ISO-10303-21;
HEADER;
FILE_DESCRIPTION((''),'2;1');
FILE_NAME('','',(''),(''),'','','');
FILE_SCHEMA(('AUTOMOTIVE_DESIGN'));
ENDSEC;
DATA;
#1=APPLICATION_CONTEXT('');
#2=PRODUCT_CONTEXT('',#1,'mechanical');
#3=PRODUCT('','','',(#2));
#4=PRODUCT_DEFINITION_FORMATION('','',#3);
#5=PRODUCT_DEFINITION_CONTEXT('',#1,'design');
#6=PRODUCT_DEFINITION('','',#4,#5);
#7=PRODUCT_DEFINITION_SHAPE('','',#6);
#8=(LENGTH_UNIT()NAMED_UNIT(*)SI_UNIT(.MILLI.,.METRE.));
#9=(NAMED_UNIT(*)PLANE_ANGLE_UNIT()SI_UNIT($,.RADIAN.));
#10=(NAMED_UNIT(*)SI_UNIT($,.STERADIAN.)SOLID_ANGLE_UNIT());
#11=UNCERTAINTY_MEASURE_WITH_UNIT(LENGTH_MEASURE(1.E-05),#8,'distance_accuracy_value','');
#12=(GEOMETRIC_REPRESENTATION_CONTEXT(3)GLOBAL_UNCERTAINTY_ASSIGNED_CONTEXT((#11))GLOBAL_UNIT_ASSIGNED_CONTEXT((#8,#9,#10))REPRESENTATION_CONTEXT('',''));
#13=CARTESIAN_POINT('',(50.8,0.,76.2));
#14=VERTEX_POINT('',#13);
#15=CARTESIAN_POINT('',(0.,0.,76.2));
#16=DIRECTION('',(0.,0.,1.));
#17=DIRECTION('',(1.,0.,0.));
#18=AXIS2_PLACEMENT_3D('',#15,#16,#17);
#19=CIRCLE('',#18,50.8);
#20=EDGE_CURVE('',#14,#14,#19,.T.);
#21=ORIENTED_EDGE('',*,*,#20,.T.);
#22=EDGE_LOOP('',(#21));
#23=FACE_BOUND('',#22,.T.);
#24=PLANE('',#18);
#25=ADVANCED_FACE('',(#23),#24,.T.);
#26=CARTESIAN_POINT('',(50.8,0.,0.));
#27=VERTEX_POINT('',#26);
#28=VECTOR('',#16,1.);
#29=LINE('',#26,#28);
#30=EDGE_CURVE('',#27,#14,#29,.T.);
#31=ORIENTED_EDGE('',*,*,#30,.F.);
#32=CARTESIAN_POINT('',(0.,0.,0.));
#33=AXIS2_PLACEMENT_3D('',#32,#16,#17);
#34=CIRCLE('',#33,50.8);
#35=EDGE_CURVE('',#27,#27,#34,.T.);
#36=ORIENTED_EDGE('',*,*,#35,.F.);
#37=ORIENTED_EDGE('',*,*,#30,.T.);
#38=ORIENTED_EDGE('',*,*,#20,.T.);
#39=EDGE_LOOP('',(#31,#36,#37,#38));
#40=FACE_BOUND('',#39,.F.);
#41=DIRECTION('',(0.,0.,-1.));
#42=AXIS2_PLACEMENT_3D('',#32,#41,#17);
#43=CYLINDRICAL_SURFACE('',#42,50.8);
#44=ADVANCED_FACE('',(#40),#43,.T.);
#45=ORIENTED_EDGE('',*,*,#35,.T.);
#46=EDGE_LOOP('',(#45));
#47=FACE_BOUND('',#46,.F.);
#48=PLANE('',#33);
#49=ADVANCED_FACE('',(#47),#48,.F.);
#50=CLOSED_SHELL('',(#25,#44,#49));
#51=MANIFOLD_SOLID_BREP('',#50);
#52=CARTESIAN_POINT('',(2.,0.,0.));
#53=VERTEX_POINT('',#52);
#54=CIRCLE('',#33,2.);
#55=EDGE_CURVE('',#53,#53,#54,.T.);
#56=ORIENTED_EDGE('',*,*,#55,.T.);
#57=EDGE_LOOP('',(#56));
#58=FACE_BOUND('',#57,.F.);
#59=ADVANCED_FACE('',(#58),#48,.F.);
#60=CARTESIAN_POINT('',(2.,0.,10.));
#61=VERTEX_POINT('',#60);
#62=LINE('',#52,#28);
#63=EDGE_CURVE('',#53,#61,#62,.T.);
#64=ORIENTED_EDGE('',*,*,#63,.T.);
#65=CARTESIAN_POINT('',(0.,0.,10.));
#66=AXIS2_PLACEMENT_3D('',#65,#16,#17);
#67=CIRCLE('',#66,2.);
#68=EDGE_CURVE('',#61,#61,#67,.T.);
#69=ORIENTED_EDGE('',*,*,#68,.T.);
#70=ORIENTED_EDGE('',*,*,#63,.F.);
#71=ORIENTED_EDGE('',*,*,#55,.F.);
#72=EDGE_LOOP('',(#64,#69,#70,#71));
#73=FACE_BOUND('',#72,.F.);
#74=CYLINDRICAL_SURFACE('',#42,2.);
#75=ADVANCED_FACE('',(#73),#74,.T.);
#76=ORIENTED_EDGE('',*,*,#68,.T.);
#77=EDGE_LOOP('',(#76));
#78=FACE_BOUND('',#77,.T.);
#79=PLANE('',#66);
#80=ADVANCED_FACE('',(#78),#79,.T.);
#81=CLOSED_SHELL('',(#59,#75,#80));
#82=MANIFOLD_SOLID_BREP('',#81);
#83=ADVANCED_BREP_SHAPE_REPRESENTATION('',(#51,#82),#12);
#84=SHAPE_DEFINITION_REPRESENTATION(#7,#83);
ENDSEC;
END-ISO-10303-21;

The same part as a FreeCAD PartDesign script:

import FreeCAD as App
import Part
import Sketcher
from FreeCAD import Vector
Q = App.Units.Quantity

doc = App.newDocument("Part")
body = doc.addObject("PartDesign::Body", "Body")

sketch1 = body.newObject("Sketcher::SketchObject", "Sketch")
sketch1.AttachmentSupport = (doc.getObject("XY_Plane"), [""])
sketch1.MapMode = "FlatFace"
sketch1.addGeometry(Part.Circle(Vector(0, 0, 0), Vector(0, 0, 1), 50.8), False)
sketch1.addConstraint([
    Sketcher.Constraint("Coincident", 0, 3, -1, 1),
    Sketcher.Constraint("Diameter", 0, Q("101.6 mm")),
])
pad1 = body.newObject("PartDesign::Pad", "Pad")
pad1.Profile = sketch1
pad1.Length = 76.2
body2 = doc.addObject("PartDesign::Body", "Body001")

sketch2 = body2.newObject("Sketcher::SketchObject", "Sketch001")
sketch2.AttachmentSupport = (doc.getObject("XY_Plane001"), [""])
sketch2.MapMode = "FlatFace"
sketch2.addGeometry(Part.Circle(Vector(0, 0, 0), Vector(0, 0, 1), 2), False)
sketch2.addConstraint([
    Sketcher.Constraint("Coincident", 0, 3, -1, 1),
    Sketcher.Constraint("Diameter", 0, Q("4 mm")),
])
pad2 = body2.newObject("PartDesign::Pad", "Pad001")
pad2.Profile = sketch2
pad2.Length = 10

doc.recompute()
